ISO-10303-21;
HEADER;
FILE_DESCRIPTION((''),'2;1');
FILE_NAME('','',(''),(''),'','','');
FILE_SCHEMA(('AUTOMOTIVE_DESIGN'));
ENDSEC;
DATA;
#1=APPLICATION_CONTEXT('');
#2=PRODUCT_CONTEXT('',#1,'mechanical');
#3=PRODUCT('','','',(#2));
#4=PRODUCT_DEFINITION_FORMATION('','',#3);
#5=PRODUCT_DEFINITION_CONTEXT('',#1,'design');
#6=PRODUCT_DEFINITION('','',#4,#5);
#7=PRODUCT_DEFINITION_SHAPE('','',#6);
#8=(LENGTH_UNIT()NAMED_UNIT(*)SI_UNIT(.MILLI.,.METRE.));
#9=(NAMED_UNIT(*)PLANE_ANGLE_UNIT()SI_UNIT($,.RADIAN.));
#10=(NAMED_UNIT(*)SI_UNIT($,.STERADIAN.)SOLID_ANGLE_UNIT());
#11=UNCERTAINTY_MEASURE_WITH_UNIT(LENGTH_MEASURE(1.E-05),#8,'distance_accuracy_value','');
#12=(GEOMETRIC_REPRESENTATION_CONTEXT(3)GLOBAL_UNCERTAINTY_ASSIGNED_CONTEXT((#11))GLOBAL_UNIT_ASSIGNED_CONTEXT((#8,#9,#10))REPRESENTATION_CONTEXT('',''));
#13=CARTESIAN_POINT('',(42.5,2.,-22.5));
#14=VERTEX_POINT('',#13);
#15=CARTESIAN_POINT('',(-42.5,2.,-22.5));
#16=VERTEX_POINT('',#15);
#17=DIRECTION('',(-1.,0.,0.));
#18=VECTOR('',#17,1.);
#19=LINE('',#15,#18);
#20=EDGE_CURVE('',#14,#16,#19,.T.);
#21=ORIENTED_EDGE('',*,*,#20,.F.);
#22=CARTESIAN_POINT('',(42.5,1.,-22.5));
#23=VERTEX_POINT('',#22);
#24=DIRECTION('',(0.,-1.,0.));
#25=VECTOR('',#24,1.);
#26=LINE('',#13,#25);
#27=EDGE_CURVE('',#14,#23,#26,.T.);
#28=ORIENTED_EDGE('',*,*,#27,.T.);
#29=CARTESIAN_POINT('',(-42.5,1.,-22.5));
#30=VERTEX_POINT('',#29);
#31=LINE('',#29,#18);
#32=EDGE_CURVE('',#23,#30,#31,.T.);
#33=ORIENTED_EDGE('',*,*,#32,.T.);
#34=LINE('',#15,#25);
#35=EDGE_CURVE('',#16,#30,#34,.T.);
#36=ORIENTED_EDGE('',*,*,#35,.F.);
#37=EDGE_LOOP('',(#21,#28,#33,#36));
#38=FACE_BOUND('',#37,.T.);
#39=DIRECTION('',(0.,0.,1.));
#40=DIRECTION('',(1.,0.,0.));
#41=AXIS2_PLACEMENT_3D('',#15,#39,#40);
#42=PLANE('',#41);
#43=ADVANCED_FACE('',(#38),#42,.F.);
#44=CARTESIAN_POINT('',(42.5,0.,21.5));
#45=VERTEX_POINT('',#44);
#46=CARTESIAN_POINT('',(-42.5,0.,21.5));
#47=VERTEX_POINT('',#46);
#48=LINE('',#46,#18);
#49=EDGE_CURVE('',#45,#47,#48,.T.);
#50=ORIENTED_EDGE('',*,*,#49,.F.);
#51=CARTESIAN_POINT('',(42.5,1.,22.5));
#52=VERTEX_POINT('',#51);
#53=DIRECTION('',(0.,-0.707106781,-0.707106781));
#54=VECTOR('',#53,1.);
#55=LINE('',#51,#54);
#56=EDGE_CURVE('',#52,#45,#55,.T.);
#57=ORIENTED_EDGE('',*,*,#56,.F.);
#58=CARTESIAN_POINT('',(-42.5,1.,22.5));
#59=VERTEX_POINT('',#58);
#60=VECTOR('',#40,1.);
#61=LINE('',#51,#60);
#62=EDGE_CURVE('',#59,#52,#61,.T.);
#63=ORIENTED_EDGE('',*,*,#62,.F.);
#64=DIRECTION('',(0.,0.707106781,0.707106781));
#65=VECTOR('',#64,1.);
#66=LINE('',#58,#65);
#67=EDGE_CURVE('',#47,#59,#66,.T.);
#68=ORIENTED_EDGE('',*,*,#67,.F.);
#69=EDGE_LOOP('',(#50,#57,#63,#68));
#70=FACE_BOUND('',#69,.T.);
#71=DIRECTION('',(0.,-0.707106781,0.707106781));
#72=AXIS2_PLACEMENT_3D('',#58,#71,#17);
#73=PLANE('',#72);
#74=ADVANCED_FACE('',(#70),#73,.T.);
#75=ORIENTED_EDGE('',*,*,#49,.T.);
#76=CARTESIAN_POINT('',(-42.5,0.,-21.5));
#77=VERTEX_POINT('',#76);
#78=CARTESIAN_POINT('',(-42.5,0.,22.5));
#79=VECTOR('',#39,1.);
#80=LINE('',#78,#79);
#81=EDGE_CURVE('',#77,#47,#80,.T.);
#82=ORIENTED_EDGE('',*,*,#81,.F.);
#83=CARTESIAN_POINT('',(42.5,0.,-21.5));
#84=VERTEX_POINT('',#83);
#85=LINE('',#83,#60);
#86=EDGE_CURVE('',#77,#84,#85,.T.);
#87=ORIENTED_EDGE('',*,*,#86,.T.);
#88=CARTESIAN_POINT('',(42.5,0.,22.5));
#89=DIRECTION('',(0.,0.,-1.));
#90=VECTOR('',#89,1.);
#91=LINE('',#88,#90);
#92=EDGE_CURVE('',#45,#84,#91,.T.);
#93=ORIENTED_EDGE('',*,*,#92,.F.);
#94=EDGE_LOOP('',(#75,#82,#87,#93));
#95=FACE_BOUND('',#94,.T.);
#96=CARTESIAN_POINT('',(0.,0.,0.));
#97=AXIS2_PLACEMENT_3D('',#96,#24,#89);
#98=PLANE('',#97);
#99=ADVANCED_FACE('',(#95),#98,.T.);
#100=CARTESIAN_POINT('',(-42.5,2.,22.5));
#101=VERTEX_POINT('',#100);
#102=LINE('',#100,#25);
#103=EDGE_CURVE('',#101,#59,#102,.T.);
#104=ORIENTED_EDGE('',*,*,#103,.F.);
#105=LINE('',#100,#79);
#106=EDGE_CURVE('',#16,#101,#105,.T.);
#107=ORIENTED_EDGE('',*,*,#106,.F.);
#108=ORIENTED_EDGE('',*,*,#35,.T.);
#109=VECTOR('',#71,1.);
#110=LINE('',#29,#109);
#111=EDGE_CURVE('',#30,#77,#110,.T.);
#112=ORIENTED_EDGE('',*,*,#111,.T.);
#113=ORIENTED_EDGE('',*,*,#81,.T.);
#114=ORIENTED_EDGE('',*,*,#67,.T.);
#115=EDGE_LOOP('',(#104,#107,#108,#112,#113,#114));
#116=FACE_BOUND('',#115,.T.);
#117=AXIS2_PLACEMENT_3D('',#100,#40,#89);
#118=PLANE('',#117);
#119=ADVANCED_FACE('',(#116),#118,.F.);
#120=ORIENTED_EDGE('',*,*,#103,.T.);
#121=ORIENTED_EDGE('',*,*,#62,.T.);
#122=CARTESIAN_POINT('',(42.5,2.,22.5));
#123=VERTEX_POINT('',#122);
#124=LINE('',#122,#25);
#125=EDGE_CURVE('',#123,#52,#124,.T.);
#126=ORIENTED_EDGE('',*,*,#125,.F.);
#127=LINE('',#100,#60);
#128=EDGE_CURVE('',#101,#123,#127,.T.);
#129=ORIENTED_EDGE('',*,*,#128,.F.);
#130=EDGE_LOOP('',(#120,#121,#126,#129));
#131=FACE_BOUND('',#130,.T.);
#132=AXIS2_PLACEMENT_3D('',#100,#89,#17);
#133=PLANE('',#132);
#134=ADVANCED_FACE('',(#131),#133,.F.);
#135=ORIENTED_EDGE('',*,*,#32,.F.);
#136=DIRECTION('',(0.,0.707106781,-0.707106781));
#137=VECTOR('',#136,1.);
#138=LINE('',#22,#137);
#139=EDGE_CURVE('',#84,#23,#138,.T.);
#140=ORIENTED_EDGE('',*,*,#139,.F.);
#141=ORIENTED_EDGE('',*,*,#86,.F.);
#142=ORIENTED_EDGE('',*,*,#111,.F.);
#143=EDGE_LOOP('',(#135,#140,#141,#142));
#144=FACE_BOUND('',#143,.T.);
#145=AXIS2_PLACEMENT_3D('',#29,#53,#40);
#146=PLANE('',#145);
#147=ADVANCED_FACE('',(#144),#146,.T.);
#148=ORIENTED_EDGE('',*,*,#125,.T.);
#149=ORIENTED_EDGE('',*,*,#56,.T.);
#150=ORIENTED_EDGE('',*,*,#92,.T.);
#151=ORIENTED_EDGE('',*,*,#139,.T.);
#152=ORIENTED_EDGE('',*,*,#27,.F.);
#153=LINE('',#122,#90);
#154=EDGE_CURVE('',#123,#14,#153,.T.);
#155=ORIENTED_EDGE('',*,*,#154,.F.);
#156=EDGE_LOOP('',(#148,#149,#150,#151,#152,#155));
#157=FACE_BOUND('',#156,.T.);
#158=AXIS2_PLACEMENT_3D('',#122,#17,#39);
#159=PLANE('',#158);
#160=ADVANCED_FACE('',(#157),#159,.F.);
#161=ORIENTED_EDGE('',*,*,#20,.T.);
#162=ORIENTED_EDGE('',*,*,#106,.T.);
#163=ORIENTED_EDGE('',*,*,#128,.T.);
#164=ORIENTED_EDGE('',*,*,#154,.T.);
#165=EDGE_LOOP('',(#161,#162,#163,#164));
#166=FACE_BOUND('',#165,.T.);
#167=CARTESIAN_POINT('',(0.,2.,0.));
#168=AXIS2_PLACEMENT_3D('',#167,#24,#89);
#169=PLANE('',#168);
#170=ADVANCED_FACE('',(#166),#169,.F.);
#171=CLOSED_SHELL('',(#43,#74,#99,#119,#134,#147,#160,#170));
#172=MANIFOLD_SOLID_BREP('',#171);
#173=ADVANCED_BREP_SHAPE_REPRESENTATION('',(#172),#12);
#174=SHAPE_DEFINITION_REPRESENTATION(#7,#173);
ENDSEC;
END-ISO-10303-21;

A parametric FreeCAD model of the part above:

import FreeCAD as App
import Part
import Sketcher

V = App.Vector


def edges_at(feature, points):
    """Names of the edges that pass closest to the given points."""
    edges = feature.Shape.Edges
    near = lambda p: min(range(len(edges)), key=lambda i: edges[i].distToShape(Part.Vertex(*p))[0])
    return sorted({f"Edge{near(p) + 1}" for p in points})


def add_polygon(sketch, points):
    """Adds a closed chain of lines whose ends are joined by coincident constraints."""
    first, n = sketch.GeometryCount, len(points)
    for a, b in zip(points, points[1:] + points[:1]):
        sketch.addGeometry(Part.LineSegment(App.Vector(*a, 0), App.Vector(*b, 0)), False)
    for i in range(n):
        sketch.addConstraint(Sketcher.Constraint("Coincident", first + i, 2, first + (i + 1) % n, 1))

doc = App.newDocument("Part")
body = doc.addObject("PartDesign::Body", "Body")

# Sketch on XZ plane
sketch1 = body.newObject("Sketcher::SketchObject", "Sketch")
sketch1.AttachmentSupport = (doc.getObject("XZ_Plane"), [""])
sketch1.MapMode = "FlatFace"
add_polygon(sketch1, [(-42, -22), (-42, 22), (42, 22), (42, -22)])  # lines 0-3
sketch1.addConstraint([
    Sketcher.Constraint("Vertical", 0),
    Sketcher.Constraint("Horizontal", 1),
    Sketcher.Constraint("Vertical", 2),
    Sketcher.Constraint("Horizontal", 3),
    Sketcher.Constraint("Symmetric", 0, 2, 2, 2, -1, 1),
    Sketcher.Constraint("DistanceX", 1, 1, 1, 2, 85.0),
    Sketcher.Constraint("DistanceY", 0, 1, 0, 2, 45.0),
])
pad1 = body.newObject("PartDesign::Pad", "Pad")
pad1.Profile = sketch1
pad1.Length = 2
pad1.Reversed = True
doc.recompute()

chamfer = body.newObject("PartDesign::Chamfer", "Chamfer")
chamfer.Base = (pad1, edges_at(pad1, [(0, 0, 22.5), (0, 0, -22.5)]))
chamfer.Size = 1

doc.recompute()
